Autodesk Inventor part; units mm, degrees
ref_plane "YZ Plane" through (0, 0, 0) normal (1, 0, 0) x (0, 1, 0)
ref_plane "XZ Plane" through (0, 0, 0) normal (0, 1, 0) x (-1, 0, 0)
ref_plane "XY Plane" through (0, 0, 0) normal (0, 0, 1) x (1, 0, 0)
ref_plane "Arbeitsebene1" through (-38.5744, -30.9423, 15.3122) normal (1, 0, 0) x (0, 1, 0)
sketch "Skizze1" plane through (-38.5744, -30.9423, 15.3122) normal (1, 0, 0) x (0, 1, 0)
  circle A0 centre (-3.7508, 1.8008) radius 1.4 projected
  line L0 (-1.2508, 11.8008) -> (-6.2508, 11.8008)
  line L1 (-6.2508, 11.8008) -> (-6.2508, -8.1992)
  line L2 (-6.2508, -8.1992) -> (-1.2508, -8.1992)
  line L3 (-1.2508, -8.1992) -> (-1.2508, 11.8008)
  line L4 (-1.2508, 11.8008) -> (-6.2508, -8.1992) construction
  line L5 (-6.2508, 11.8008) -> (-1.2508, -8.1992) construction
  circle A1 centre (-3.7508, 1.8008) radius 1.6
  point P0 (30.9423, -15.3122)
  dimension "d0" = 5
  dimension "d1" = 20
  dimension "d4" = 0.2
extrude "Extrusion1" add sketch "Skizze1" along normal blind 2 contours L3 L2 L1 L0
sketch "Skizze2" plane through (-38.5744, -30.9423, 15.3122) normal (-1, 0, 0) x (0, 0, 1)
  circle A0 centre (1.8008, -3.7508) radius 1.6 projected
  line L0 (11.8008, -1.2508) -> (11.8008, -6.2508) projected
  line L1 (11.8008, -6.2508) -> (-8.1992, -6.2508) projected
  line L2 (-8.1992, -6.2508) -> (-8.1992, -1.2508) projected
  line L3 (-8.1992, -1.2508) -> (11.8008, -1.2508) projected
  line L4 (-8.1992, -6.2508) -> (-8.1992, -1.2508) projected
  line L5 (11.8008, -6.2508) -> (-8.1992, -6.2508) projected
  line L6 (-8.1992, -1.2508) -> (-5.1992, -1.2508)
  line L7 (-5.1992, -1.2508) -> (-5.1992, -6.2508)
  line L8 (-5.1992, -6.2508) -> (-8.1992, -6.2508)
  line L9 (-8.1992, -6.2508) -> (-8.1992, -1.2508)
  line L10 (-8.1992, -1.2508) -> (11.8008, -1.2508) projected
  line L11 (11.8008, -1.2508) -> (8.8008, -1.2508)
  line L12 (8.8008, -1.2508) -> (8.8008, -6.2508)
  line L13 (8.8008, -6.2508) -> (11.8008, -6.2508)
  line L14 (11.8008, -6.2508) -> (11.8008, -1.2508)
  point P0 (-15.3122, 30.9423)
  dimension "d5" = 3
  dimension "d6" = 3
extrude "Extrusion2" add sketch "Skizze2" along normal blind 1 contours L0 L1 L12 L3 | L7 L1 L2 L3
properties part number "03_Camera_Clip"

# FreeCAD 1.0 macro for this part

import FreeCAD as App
import Part
import Sketcher
Q = App.Units.Quantity

doc = App.newDocument("Part")
body = doc.addObject("PartDesign::Body", "Body")

sketch1 = body.newObject("Sketcher::SketchObject", "Sketch")
sketch1.AttachmentSupport = (doc.getObject("YZ_Plane"), [""])
sketch1.MapMode = "FlatFace"
sketch1.AttachmentOffset = App.Placement(App.Vector(0, 0, -38.5744), App.Rotation())
sketch1.addGeometry(Part.LineSegment(App.Vector(-32.1931, 7.113, 0), App.Vector(-32.1931, 27.113, 0)), False)
sketch1.addGeometry(Part.LineSegment(App.Vector(-32.1931, 27.113, 0), App.Vector(-37.1931, 27.113, 0)), False)
sketch1.addGeometry(Part.LineSegment(App.Vector(-37.1931, 27.113, 0), App.Vector(-37.1931, 7.113, 0)), False)
sketch1.addGeometry(Part.LineSegment(App.Vector(-37.1931, 7.113, 0), App.Vector(-32.1931, 7.113, 0)), False)
sketch1.addGeometry(Part.Circle(App.Vector(-34.6931, 17.113, 0), App.Vector(0, 0, 1), 1.6), False)
sketch1.addConstraint(Sketcher.Constraint("Coincident", 0, 2, 1, 1))
sketch1.addConstraint(Sketcher.Constraint("Coincident", 1, 2, 2, 1))
sketch1.addConstraint(Sketcher.Constraint("Coincident", 2, 2, 3, 1))
sketch1.addConstraint(Sketcher.Constraint("Coincident", 3, 2, 0, 1))
sketch1.addConstraint(Sketcher.Constraint("Vertical", 0))
sketch1.addConstraint(Sketcher.Constraint("Horizontal", 1))
sketch1.addConstraint(Sketcher.Constraint("Vertical", 2))
sketch1.addConstraint(Sketcher.Constraint("Horizontal", 3))
sketch1.addConstraint(Sketcher.Constraint("DistanceX", 1, 2, 1, 1, Q("5 mm")))
sketch1.addConstraint(Sketcher.Constraint("DistanceY", 0, 1, 0, 2, Q("20 mm")))
sketch1.addConstraint(Sketcher.Constraint("Diameter", 4, Q("3.2 mm")))
sketch1.addConstraint(Sketcher.Constraint("DistanceY", 4, 3, 0, 2, Q("10 mm")))
sketch1.addConstraint(Sketcher.Constraint("DistanceX", 4, 3, 0, 2, Q("2.5 mm")))
sketch1.addConstraint(Sketcher.Constraint("DistanceX", 4, 3, -1, 1, Q("34.693 mm")))
sketch1.addConstraint(Sketcher.Constraint("DistanceY", -1, 1, 4, 3, Q("17.113 mm")))
pad1 = body.newObject("PartDesign::Pad", "Pad")
pad1.Profile = sketch1
pad1.Length = 2

sketch2 = body.newObject("Sketcher::SketchObject", "Sketch001")
sketch2.AttachmentSupport = (doc.getObject("YZ_Plane"), [""])
sketch2.MapMode = "FlatFace"
sketch2.AttachmentOffset = App.Placement(App.Vector(0, 0, -38.5744), App.Rotation())
sketch2.addGeometry(Part.LineSegment(App.Vector(-37.1931, 27.113, 0), App.Vector(-32.1931, 27.113, 0)), False)
sketch2.addGeometry(Part.LineSegment(App.Vector(-32.1931, 27.113, 0), App.Vector(-32.1931, 24.113, 0)), False)
sketch2.addGeometry(Part.LineSegment(App.Vector(-32.1931, 24.113, 0), App.Vector(-37.1931, 24.113, 0)), False)
sketch2.addGeometry(Part.LineSegment(App.Vector(-37.1931, 24.113, 0), App.Vector(-37.1931, 27.113, 0)), False)
sketch2.addGeometry(Part.LineSegment(App.Vector(-37.1931, 10.113, 0), App.Vector(-32.1931, 10.113, 0)), False)
sketch2.addGeometry(Part.LineSegment(App.Vector(-32.1931, 10.113, 0), App.Vector(-32.1931, 7.113, 0)), False)
sketch2.addGeometry(Part.LineSegment(App.Vector(-32.1931, 7.113, 0), App.Vector(-37.1931, 7.113, 0)), False)
sketch2.addGeometry(Part.LineSegment(App.Vector(-37.1931, 7.113, 0), App.Vector(-37.1931, 10.113, 0)), False)
sketch2.addConstraint(Sketcher.Constraint("Coincident", 0, 2, 1, 1))
sketch2.addConstraint(Sketcher.Constraint("Coincident", 1, 2, 2, 1))
sketch2.addConstraint(Sketcher.Constraint("Coincident", 2, 2, 3, 1))
sketch2.addConstraint(Sketcher.Constraint("Coincident", 3, 2, 0, 1))
sketch2.addConstraint(Sketcher.Constraint("Coincident", 4, 2, 5, 1))
sketch2.addConstraint(Sketcher.Constraint("Coincident", 5, 2, 6, 1))
sketch2.addConstraint(Sketcher.Constraint("Coincident", 6, 2, 7, 1))
sketch2.addConstraint(Sketcher.Constraint("Coincident", 7, 2, 4, 1))
sketch2.addConstraint(Sketcher.Constraint("Horizontal", 0))
sketch2.addConstraint(Sketcher.Constraint("Vertical", 1))
sketch2.addConstraint(Sketcher.Constraint("Horizontal", 2))
sketch2.addConstraint(Sketcher.Constraint("Vertical", 3))
sketch2.addConstraint(Sketcher.Constraint("Horizontal", 4))
sketch2.addConstraint(Sketcher.Constraint("Vertical", 5))
sketch2.addConstraint(Sketcher.Constraint("Horizontal", 6))
sketch2.addConstraint(Sketcher.Constraint("Vertical", 7))
sketch2.addConstraint(Sketcher.Constraint("Vertical", 1, 2, 4, 2))
sketch2.addConstraint(Sketcher.Constraint("Vertical", 3, 2, 6, 2))
sketch2.addConstraint(Sketcher.Constraint("Equal", 3, 5))
sketch2.addConstraint(Sketcher.Constraint("DistanceY", 1, 2, 1, 1, Q("3 mm")))
sketch2.addConstraint(Sketcher.Constraint("DistanceX", 0, 1, 0, 2, Q("5 mm")))
sketch2.addConstraint(Sketcher.Constraint("DistanceY", 4, 2, 1, 2, Q("14 mm")))
sketch2.addConstraint(Sketcher.Constraint("DistanceX", 0, 2, -1, 1, Q("32.193 mm")))
sketch2.addConstraint(Sketcher.Constraint("DistanceY", -1, 1, 0, 2, Q("27.113 mm")))
pad2 = body.newObject("PartDesign::Pad", "Pad001")
pad2.Profile = sketch2
pad2.Length = 1
pad2.Reversed = True

doc.recompute()
